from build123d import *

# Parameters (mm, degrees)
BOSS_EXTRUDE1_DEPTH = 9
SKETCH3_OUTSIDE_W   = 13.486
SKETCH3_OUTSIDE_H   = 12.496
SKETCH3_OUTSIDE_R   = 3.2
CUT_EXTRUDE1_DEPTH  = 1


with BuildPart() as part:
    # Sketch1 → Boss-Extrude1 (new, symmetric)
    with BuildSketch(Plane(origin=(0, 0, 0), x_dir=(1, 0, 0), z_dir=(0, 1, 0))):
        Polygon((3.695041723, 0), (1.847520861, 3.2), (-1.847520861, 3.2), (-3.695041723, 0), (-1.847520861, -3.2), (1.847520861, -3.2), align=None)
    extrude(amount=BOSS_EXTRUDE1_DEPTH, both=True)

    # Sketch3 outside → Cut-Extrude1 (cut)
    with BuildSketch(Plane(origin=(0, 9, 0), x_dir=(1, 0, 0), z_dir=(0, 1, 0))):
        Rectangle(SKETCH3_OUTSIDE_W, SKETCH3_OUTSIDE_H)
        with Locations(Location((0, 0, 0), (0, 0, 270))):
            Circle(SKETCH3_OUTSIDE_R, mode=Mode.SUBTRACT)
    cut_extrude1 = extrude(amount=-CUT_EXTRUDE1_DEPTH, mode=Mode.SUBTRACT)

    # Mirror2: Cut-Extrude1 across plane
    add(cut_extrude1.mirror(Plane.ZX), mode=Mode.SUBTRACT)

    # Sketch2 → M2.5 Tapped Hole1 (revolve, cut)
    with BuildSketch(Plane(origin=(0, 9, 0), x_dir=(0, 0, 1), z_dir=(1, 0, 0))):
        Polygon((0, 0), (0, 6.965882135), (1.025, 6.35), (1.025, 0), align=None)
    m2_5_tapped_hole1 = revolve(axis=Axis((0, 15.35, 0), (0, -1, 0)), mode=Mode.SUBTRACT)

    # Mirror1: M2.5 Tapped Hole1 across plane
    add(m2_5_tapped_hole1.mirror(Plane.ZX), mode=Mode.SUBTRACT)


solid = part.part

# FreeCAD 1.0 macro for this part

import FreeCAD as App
import Part
import Sketcher
from FreeCAD import Vector
Q = App.Units.Quantity

doc = App.newDocument("Part")
body = doc.addObject("PartDesign::Body", "Body")

# Sketch on XZ plane
sketch1 = doc.addObject("Sketcher::SketchObject", "Sketch")
body.addObject(sketch1)
sketch1.AttachmentSupport = (doc.XZ_Plane, [""])
sketch1.MapMode = "FlatFace"
sketch1.addGeometry([
    Part.LineSegment(Vector(3.695042, 0, 0), Vector(1.847521, -3.2, 0)),  # 0
    Part.LineSegment(Vector(1.847521, -3.2, 0), Vector(-1.847521, -3.2, 0)),  # 1
    Part.LineSegment(Vector(-1.847521, -3.2, 0), Vector(-3.695042, 0, 0)),  # 2
    Part.LineSegment(Vector(-3.695042, 0, 0), Vector(-1.847521, 3.2, 0)),  # 3
    Part.LineSegment(Vector(-1.847521, 3.2, 0), Vector(1.847521, 3.2, 0)),  # 4
    Part.LineSegment(Vector(1.847521, 3.2, 0), Vector(3.695042, 0, 0)),  # 5
], False)
sketch1.addConstraint([
    Sketcher.Constraint("Coincident", 0, 2, 1, 1),
    Sketcher.Constraint("Coincident", 1, 2, 2, 1),
    Sketcher.Constraint("Coincident", 2, 2, 3, 1),
    Sketcher.Constraint("Coincident", 3, 2, 4, 1),
    Sketcher.Constraint("Coincident", 4, 2, 5, 1),
    Sketcher.Constraint("Coincident", 5, 2, 0, 1),
    Sketcher.Constraint("Horizontal", 1),
    Sketcher.Constraint("Horizontal", 4),
    Sketcher.Constraint("Symmetric", 0, 2, 3, 2, -1, 1),
    Sketcher.Constraint("Symmetric", 2, 2, 5, 2, -1, 1),
    Sketcher.Constraint("PointOnObject", 2, 2, -1),
    Sketcher.Constraint("Parallel", 2, 5),
    Sketcher.Constraint("Vertical", 1, 2, 3, 2),
    Sketcher.Constraint("Angle", 0, Q("-120 deg")),
    Sketcher.Constraint("DistanceY", 0, 2, -1, 1, 3.2),
    Sketcher.Constraint("DistanceX", 1, 2, 1, 1, 3.695042),
])
pad1 = doc.addObject("PartDesign::Pad", "Pad")
body.addObject(pad1)
pad1.Profile = sketch1
pad1.Length = 18
pad1.Midplane = True

# Sketch on XZ plane
sketch2 = doc.addObject("Sketcher::SketchObject", "Sketch001")
body.addObject(sketch2)
sketch2.AttachmentSupport = (doc.XZ_Plane, [""])
sketch2.MapMode = "FlatFace"
sketch2.AttachmentOffset = App.Placement(Vector(0, 0, -9), App.Rotation())
sketch2.addGeometry([
    Part.LineSegment(Vector(-6.743, -6.248, 0), Vector(-6.743, 6.248, 0)),  # 0
    Part.LineSegment(Vector(-6.743, 6.248, 0), Vector(6.743, 6.248, 0)),  # 1
    Part.LineSegment(Vector(6.743, 6.248, 0), Vector(6.743, -6.248, 0)),  # 2
    Part.LineSegment(Vector(6.743, -6.248, 0), Vector(-6.743, -6.248, 0)),  # 3
    Part.Circle(Vector(0, 0, 0), Vector(0, 0, 1), 3.2),  # 4
], False)
sketch2.addConstraint([
    Sketcher.Constraint("Coincident", 0, 2, 1, 1),
    Sketcher.Constraint("Coincident", 1, 2, 2, 1),
    Sketcher.Constraint("Coincident", 2, 2, 3, 1),
    Sketcher.Constraint("Coincident", 3, 2, 0, 1),
    Sketcher.Constraint("Vertical", 0),
    Sketcher.Constraint("Horizontal", 1),
    Sketcher.Constraint("Vertical", 2),
    Sketcher.Constraint("Horizontal", 3),
    Sketcher.Constraint("Coincident", 4, 3, -1, 1),
    Sketcher.Constraint("Symmetric", 0, 2, 2, 2, -1, 1),
    Sketcher.Constraint("Diameter", 4, 6.4),
    Sketcher.Constraint("DistanceX", 1, 1, 1, 2, 13.486),
    Sketcher.Constraint("DistanceY", 0, 1, 0, 2, 12.496),
])
pocket1 = doc.addObject("PartDesign::Pocket", "Pocket")
body.addObject(pocket1)
pocket1.Profile = sketch2
pocket1.Length = 1
pocket1.Reversed = True
doc.recompute()

mirrored = doc.addObject("PartDesign::Mirrored", "Mirrored")
body.addObject(mirrored)
mirrored.Originals = [pocket1]
mirrored.MirrorPlane = (doc.XZ_Plane, [""])
body.Tip = mirrored

# Sketch on YZ plane
sketch3 = doc.addObject("Sketcher::SketchObject", "Sketch002")
body.addObject(sketch3)
sketch3.AttachmentSupport = (doc.YZ_Plane, [""])
sketch3.MapMode = "FlatFace"
sketch3.addGeometry([
    Part.LineSegment(Vector(2.034118, 0, 0), Vector(9, 0, 0)),
    Part.LineSegment(Vector(9, 0, 0), Vector(9, 1.025, 0)),
    Part.LineSegment(Vector(9, 1.025, 0), Vector(2.65, 1.025, 0)),
    Part.LineSegment(Vector(2.65, 1.025, 0), Vector(2.034118, 0, 0)),
], False)
sketch3.addConstraint([
    Sketcher.Constraint("Coincident", 0, 2, 1, 1),
    Sketcher.Constraint("Coincident", 1, 2, 2, 1),
    Sketcher.Constraint("Coincident", 2, 2, 3, 1),
    Sketcher.Constraint("Coincident", 3, 2, 0, 1),
    Sketcher.Constraint("Horizontal", 0),
    Sketcher.Constraint("Vertical", 1),
    Sketcher.Constraint("Horizontal", 2),
    Sketcher.Constraint("PointOnObject", 0, 2, -1),
    Sketcher.Constraint("Angle", 3, Q("-121 deg")),
    Sketcher.Constraint("DistanceX", -1, 1, 0, 2, 9.0),
    Sketcher.Constraint("DistanceX", 2, 2, 2, 1, 6.35),
    Sketcher.Constraint("DistanceY", 1, 1, 1, 2, 1.025),
])
groove = doc.addObject("PartDesign::Groove", "Groove")
body.addObject(groove)
groove.Profile = sketch3
groove.ReferenceAxis = (sketch3, ["H_Axis"])
groove.Angle = 360
doc.recompute()

mirrored2 = doc.addObject("PartDesign::Mirrored", "Mirrored001")
body.addObject(mirrored2)
mirrored2.Originals = [groove]
mirrored2.MirrorPlane = (doc.XZ_Plane, [""])
body.Tip = mirrored2

doc.recompute()
